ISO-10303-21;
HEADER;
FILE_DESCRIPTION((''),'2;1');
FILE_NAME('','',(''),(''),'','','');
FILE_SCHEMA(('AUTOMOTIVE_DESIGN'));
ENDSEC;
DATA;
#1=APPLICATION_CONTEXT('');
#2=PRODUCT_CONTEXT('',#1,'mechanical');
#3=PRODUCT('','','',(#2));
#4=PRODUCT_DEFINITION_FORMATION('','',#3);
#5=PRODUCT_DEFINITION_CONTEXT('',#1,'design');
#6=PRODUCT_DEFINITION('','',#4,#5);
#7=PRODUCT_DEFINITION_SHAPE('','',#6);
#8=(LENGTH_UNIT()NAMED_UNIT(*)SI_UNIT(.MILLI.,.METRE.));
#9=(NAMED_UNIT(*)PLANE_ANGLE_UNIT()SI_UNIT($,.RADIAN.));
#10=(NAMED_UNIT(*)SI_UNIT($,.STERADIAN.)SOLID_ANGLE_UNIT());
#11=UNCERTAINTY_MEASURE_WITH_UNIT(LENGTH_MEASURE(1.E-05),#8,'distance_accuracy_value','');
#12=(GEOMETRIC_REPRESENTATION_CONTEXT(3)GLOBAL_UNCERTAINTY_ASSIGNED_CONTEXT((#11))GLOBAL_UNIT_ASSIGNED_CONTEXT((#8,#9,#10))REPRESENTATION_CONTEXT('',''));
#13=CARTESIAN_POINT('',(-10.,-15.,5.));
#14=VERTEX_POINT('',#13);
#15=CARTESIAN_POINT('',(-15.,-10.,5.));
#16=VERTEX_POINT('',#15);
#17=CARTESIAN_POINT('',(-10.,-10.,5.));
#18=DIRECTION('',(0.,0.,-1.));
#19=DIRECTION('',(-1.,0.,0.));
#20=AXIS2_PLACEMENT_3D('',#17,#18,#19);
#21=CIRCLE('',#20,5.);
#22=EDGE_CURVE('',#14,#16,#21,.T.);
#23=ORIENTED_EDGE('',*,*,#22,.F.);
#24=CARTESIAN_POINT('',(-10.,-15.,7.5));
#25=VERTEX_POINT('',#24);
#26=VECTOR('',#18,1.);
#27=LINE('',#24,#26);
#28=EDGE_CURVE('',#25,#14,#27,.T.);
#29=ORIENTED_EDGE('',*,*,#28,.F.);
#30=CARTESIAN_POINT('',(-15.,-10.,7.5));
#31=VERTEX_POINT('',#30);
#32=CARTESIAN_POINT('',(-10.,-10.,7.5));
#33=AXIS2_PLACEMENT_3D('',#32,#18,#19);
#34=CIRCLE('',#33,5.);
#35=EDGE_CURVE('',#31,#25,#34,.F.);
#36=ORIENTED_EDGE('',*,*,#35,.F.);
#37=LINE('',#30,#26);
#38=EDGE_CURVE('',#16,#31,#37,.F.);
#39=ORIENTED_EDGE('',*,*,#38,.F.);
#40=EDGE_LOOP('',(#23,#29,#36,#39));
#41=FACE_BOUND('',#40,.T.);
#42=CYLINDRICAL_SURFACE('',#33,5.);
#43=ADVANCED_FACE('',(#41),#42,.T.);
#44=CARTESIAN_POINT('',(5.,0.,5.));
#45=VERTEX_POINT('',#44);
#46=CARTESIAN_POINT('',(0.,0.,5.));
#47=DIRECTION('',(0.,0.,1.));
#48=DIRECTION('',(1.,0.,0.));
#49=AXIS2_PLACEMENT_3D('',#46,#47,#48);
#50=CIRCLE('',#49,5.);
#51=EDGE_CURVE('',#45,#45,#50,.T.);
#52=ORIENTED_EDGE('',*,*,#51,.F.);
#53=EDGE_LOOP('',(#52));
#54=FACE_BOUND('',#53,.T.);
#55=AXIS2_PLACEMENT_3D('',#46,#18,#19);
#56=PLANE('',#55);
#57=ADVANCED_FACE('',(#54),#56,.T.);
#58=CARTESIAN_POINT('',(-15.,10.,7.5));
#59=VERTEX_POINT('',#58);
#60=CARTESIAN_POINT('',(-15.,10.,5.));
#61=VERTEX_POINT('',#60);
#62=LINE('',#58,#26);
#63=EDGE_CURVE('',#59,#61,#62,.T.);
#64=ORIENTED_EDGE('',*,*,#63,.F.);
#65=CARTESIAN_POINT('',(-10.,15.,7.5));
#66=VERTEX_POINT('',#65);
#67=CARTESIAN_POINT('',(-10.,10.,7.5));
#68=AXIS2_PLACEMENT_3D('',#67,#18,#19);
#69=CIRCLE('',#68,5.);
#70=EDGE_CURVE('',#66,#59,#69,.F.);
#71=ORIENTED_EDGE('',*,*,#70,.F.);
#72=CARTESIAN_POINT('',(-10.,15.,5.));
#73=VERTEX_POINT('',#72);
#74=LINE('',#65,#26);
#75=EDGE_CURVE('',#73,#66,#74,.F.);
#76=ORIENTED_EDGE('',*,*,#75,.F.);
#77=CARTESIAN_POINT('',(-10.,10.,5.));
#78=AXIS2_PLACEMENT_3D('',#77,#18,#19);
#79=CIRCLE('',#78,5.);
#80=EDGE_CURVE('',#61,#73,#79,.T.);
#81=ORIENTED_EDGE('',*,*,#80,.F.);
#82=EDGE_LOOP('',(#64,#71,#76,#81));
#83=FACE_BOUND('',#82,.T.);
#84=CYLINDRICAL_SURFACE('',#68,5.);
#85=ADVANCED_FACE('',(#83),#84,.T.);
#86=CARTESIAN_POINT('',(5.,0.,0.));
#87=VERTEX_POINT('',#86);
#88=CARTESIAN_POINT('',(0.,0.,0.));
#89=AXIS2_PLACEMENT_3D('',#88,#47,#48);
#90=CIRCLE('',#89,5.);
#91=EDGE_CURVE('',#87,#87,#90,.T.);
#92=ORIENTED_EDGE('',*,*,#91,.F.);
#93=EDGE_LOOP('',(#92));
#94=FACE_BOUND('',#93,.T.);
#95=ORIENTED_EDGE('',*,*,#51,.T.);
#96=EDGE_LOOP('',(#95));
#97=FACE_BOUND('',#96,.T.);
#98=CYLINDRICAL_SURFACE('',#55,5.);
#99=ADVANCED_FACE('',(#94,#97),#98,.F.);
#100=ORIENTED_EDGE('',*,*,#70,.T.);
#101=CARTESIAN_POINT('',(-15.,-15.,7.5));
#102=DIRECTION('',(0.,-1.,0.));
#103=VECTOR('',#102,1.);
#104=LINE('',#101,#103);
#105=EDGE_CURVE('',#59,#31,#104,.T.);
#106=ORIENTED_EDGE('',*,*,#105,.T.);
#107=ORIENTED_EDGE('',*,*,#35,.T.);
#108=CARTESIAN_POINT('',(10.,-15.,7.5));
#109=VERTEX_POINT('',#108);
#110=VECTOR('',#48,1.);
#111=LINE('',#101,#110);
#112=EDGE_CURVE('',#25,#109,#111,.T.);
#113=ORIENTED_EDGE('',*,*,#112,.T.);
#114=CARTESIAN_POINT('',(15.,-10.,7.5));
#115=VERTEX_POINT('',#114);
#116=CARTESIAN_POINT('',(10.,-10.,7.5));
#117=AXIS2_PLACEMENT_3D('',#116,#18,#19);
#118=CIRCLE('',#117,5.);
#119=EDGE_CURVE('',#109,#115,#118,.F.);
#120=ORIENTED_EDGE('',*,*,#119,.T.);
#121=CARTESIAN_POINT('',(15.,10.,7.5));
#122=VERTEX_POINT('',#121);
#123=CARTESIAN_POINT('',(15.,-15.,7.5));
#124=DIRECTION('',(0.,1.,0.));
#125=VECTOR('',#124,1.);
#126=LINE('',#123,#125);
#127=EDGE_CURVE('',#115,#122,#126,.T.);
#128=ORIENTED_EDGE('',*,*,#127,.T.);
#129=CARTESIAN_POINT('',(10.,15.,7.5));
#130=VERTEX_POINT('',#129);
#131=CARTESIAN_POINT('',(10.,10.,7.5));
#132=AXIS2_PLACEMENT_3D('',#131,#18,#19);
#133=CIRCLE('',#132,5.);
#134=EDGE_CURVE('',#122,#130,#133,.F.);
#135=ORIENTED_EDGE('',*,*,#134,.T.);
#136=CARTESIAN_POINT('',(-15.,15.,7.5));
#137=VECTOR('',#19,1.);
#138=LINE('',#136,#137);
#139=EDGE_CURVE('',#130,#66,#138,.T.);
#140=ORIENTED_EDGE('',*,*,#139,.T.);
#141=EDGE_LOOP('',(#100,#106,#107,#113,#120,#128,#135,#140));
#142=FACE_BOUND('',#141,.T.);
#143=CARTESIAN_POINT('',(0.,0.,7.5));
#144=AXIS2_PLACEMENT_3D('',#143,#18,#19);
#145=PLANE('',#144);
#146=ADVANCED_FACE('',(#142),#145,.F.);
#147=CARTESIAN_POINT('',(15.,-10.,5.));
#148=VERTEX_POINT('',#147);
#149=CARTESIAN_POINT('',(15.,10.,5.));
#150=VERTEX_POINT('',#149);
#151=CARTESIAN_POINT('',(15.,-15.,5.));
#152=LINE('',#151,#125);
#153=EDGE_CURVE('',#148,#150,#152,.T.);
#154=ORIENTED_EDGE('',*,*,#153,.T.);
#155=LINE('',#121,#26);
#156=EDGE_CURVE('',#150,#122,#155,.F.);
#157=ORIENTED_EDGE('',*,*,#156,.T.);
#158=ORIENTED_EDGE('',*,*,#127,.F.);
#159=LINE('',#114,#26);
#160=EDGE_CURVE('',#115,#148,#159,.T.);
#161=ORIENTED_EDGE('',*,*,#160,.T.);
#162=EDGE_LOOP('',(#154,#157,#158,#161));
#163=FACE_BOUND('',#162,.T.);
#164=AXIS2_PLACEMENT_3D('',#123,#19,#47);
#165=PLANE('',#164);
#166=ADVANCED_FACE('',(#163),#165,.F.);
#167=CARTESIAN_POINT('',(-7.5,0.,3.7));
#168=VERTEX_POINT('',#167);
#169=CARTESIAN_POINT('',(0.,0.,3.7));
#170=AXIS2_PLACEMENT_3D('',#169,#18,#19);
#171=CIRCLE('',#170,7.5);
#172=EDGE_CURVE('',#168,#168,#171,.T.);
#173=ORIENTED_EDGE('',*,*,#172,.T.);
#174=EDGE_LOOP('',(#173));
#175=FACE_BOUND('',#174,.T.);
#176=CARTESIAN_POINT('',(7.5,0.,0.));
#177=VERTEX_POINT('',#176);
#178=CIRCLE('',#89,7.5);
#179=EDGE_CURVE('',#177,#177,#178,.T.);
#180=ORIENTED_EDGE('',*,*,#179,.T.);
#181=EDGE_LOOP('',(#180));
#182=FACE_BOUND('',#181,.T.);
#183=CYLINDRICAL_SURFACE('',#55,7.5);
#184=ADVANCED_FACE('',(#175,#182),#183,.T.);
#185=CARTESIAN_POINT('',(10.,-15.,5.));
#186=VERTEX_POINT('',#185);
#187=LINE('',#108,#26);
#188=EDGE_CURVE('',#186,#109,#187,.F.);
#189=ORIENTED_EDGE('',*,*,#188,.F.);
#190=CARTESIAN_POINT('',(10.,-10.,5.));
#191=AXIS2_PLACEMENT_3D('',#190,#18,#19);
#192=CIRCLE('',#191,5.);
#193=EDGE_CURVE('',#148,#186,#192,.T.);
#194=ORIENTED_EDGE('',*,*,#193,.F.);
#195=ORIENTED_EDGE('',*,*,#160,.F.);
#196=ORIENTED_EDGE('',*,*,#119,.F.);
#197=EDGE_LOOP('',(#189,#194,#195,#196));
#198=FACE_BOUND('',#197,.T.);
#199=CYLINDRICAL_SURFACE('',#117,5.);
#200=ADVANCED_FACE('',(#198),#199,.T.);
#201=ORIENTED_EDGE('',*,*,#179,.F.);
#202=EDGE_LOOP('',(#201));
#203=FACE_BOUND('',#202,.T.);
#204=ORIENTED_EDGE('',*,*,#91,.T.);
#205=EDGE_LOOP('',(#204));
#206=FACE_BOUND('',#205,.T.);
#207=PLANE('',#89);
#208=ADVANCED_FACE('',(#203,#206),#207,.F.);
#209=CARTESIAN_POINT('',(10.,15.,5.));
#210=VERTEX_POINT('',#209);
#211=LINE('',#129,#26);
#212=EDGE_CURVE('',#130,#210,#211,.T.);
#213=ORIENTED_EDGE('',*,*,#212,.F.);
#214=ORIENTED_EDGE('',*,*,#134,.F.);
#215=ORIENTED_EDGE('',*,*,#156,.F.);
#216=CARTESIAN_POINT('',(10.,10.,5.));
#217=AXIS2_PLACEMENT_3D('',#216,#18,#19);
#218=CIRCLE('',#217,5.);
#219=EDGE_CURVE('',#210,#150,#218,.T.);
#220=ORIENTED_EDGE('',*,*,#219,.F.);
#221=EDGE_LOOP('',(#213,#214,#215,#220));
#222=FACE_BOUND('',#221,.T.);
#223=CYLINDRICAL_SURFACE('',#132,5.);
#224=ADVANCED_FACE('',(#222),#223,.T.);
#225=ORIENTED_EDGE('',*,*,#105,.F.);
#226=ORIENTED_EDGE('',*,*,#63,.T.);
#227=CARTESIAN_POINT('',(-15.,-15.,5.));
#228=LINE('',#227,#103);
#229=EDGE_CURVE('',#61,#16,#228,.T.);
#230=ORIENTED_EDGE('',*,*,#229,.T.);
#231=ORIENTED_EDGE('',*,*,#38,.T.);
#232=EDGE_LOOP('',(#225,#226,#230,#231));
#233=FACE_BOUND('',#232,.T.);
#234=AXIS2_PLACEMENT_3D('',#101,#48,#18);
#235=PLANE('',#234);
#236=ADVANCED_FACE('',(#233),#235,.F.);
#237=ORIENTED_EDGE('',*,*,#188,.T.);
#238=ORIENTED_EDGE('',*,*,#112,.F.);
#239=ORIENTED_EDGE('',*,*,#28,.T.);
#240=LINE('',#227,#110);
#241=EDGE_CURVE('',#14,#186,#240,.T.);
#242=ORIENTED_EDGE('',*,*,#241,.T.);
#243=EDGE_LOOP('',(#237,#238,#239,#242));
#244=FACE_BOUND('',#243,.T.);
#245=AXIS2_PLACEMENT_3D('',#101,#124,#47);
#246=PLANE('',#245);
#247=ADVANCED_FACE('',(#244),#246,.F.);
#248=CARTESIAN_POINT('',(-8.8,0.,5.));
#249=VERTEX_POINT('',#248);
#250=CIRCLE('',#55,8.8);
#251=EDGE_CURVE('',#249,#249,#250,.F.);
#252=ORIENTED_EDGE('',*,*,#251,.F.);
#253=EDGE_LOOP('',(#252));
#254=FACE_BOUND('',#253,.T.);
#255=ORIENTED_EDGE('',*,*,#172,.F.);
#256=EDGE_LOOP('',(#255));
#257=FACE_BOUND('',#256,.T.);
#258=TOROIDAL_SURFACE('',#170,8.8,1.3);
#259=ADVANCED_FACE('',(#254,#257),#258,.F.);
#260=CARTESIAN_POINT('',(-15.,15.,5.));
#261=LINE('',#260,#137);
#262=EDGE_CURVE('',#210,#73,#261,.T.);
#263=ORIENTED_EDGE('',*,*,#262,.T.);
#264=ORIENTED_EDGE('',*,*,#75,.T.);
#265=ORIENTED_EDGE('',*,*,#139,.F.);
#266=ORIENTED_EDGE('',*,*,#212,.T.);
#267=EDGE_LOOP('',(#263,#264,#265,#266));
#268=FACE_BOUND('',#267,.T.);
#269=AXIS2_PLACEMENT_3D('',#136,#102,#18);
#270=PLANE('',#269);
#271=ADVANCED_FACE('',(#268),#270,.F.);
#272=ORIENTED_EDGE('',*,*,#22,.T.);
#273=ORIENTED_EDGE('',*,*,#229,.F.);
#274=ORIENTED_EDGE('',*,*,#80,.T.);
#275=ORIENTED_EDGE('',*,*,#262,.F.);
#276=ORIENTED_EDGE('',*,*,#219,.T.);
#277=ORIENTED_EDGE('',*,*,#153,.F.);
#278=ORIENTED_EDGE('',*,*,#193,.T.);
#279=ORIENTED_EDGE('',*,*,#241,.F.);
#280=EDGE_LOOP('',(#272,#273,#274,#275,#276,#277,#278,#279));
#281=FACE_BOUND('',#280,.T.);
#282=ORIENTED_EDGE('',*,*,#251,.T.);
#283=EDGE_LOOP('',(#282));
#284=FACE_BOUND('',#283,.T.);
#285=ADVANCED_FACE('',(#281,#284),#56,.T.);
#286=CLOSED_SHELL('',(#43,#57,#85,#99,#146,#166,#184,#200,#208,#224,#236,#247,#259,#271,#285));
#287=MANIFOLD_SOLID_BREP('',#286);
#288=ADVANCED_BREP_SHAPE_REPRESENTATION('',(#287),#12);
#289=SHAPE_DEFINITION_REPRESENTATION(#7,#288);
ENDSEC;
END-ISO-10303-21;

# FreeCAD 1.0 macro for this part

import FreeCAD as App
import Part
import Sketcher

V = App.Vector
Q = App.Units.Quantity


def edges_at(feature, points):
    """Names of the edges that pass closest to the given points."""
    edges = feature.Shape.Edges
    near = lambda p: min(range(len(edges)), key=lambda i: edges[i].distToShape(Part.Vertex(*p))[0])
    return sorted({f"Edge{near(p) + 1}" for p in points})

doc = App.newDocument("Part")
body = doc.addObject("PartDesign::Body", "Body")

# Sketch on XY plane
sketch1 = body.newObject("Sketcher::SketchObject", "Sketch")
sketch1.AttachmentSupport = (doc.getObject("XY_Plane"), [""])
sketch1.MapMode = "FlatFace"
sketch1.addGeometry([
    Part.Circle(V(0, 0, 0), V(0, 0, 1), 8),
    Part.Circle(V(0, 0, 0), V(0, 0, 1), 5),
], False)
sketch1.addConstraint([
    Sketcher.Constraint("Coincident", 0, 3, -1, 1),
    Sketcher.Constraint("Coincident", 1, 3, -1, 1),
    Sketcher.Constraint("Diameter", 0, Q("15 mm")),
    Sketcher.Constraint("Diameter", 1, Q("10 mm")),
])
pad1 = body.newObject("PartDesign::Pad", "Pad")
pad1.Profile = sketch1
pad1.Length = 5

# Sketch on XY plane
sketch2 = body.newObject("Sketcher::SketchObject", "Sketch001")
sketch2.AttachmentSupport = (doc.getObject("XY_Plane"), [""])
sketch2.MapMode = "FlatFace"
sketch2.AttachmentOffset = App.Placement(V(0, 0, 5), App.Rotation())
sketch2.addGeometry([
    Part.LineSegment(V(-15, 15, 0), V(-15, -15, 0)),
    Part.LineSegment(V(-15, -15, 0), V(15, -15, 0)),
    Part.LineSegment(V(15, -15, 0), V(15, 15, 0)),
    Part.LineSegment(V(15, 15, 0), V(-15, 15, 0)),
], False)
sketch2.addConstraint([
    Sketcher.Constraint("Coincident", 0, 2, 1, 1),
    Sketcher.Constraint("Coincident", 1, 2, 2, 1),
    Sketcher.Constraint("Coincident", 2, 2, 3, 1),
    Sketcher.Constraint("Coincident", 3, 2, 0, 1),
    Sketcher.Constraint("Vertical", 0),
    Sketcher.Constraint("Horizontal", 1),
    Sketcher.Constraint("Vertical", 2),
    Sketcher.Constraint("Horizontal", 3),
    Sketcher.Constraint("Symmetric", 0, 2, 2, 2, -1, 1),
    Sketcher.Constraint("Equal", 3, 0),
    Sketcher.Constraint("DistanceX", 1, 1, 1, 2, Q("30 mm")),
])
pad2 = body.newObject("PartDesign::Pad", "Pad001")
pad2.Profile = sketch2
pad2.Length = 2.5
doc.recompute()

fillet = body.newObject("PartDesign::Fillet", "Fillet")
fillet.Base = (pad2, edges_at(pad2, [
    (15, -15, 6.25),
    (15, 15, 6.25),
    (-15, 15, 6.25),
    (-15, -15, 6.25),
]))
fillet.Radius = 5
doc.recompute()

fillet2 = body.newObject("PartDesign::Fillet", "Fillet001")
fillet2.Base = (fillet, edges_at(fillet, [(-7.5, 0, 5)]))
fillet2.Radius = 1.3

doc.recompute()
